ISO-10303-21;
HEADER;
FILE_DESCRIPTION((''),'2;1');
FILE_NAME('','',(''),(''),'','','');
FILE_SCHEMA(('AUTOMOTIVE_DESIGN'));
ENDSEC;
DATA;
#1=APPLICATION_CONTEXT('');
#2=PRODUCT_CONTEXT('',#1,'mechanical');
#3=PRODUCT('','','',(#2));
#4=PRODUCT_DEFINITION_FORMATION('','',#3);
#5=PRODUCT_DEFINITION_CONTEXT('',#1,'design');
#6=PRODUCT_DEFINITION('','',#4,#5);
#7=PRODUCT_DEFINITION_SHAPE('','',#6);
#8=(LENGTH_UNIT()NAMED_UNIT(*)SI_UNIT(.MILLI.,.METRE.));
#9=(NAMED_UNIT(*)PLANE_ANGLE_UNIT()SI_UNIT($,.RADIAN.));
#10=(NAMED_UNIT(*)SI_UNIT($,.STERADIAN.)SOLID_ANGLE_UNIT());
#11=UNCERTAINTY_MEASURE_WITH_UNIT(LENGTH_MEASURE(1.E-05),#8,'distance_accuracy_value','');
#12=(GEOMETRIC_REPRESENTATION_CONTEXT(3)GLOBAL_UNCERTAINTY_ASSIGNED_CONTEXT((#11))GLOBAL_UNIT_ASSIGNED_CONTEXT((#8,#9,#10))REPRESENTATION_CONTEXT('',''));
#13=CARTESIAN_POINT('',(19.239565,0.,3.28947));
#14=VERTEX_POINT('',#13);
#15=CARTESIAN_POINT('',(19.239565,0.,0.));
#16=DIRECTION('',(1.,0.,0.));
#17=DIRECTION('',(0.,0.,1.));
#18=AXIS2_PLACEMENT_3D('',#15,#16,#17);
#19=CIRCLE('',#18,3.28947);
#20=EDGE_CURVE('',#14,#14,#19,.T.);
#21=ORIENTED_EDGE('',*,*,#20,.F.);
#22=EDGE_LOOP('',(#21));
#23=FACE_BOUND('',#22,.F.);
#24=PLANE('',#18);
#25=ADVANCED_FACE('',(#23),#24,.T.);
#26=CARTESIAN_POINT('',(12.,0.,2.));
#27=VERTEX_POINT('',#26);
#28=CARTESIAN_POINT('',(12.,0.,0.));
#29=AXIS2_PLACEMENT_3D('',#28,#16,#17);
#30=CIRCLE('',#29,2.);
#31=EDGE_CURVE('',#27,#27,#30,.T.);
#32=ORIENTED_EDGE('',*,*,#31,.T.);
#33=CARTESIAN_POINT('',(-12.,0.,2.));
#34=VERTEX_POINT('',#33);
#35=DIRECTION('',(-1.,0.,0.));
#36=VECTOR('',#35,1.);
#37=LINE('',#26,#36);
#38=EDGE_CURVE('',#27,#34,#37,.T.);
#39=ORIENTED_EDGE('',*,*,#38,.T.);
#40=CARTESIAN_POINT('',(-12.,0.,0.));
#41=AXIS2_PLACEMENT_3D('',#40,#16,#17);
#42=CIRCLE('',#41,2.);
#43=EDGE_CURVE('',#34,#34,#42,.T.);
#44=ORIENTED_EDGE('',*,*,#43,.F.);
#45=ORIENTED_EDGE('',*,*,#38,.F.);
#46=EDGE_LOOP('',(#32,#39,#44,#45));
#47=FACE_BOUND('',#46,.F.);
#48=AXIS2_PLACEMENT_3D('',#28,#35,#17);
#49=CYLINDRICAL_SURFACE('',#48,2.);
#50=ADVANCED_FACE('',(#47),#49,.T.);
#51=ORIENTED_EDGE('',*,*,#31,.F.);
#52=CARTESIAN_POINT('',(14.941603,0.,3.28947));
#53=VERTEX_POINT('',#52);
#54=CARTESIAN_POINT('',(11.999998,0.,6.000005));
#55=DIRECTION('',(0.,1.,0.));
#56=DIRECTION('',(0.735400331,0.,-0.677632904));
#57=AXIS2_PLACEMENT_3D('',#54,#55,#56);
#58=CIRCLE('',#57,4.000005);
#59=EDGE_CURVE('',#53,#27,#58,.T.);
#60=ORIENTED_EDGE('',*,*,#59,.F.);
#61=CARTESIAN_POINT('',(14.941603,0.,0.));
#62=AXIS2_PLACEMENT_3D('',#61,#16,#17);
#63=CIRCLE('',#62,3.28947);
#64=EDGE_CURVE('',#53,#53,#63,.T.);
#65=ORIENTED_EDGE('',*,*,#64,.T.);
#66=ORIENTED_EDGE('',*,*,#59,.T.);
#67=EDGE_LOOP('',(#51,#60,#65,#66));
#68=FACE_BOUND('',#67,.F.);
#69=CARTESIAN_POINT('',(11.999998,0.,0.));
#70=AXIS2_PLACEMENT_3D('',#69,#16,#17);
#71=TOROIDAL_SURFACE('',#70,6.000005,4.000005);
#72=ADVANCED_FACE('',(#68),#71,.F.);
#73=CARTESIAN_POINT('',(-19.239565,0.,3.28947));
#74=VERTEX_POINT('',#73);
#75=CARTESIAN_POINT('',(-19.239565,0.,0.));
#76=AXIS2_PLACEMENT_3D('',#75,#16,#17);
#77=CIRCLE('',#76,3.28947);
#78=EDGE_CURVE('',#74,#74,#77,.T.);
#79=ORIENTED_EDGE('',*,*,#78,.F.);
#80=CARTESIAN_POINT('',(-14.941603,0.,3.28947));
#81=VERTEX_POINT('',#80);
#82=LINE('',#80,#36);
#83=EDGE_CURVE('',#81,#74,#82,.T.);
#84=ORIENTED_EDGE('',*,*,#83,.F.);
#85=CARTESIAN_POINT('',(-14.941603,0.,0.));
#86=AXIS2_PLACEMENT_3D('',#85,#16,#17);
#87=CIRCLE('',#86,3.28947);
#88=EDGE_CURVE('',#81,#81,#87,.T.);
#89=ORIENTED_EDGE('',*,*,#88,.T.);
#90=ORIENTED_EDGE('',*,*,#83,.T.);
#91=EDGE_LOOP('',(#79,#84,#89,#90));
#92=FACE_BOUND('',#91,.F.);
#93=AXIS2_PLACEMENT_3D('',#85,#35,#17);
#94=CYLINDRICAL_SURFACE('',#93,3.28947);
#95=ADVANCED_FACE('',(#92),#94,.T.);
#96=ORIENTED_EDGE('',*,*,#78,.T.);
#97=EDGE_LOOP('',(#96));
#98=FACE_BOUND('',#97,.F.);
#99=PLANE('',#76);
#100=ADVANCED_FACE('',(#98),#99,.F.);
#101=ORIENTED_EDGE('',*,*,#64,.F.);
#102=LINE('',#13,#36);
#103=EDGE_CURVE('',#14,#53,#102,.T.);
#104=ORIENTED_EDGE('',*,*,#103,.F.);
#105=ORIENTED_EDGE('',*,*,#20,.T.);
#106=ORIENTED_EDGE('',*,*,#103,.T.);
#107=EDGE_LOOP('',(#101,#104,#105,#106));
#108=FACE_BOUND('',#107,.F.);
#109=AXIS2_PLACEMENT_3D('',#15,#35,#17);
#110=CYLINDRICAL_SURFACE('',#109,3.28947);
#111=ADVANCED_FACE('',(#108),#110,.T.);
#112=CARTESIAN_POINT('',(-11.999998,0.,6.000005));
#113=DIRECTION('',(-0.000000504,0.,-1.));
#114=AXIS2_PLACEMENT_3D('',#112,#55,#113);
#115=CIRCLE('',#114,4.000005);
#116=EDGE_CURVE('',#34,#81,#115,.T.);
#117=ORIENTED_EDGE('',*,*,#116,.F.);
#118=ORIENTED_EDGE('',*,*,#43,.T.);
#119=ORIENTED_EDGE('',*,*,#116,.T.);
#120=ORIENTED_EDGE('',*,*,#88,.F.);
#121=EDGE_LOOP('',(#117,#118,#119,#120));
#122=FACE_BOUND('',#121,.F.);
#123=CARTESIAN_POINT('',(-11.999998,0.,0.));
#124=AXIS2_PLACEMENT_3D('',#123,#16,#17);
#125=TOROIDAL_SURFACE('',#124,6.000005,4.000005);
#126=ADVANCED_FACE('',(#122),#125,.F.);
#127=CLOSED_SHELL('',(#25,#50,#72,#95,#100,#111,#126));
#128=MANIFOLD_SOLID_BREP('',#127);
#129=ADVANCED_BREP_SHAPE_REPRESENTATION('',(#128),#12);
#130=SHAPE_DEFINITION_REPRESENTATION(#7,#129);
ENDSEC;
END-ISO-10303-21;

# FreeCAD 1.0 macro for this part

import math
import FreeCAD as App
import Part
import Sketcher
from FreeCAD import Vector

doc = App.newDocument("Part")
body = doc.addObject("PartDesign::Body", "Body")

# Sketch on XZ plane
sketch1 = body.newObject("Sketcher::SketchObject", "Sketch")
sketch1.AttachmentSupport = (doc.getObject("XZ_Plane"), [""])
sketch1.MapMode = "FlatFace"
sketch1.addGeometry(Part.LineSegment(Vector(12, 2, 0), Vector(-12, 2, 0)), False)
sketch1.addGeometry(Part.ArcOfCircle(Part.Circle(Vector(-11.999998, 6.000005, 0), Vector(0, 0, 1), 4.000005), math.radians(-137.341054), math.radians(-90.000029)), False)
sketch1.addGeometry(Part.LineSegment(Vector(-14.941603, 3.28947, 0), Vector(-19.239565, 3.28947, 0)), False)
sketch1.addGeometry(Part.LineSegment(Vector(-19.239565, 3.28947, 0), Vector(-19.239565, 0, 0)), False)
sketch1.addGeometry(Part.LineSegment(Vector(-19.239565, 0, 0), Vector(19.239565, 0, 0)), False)
sketch1.addGeometry(Part.LineSegment(Vector(19.239565, 0, 0), Vector(19.239565, 3.28947, 0)), False)
sketch1.addGeometry(Part.LineSegment(Vector(19.239565, 3.28947, 0), Vector(14.941603, 3.28947, 0)), False)
sketch1.addGeometry(Part.ArcOfCircle(Part.Circle(Vector(11.999998, 6.000005, 0), Vector(0, 0, 1), 4.000005), math.radians(-89.999971), math.radians(-42.658946)), False)
sketch1.addConstraint(Sketcher.Constraint("Tangent", 0, 2, 1, 2))
sketch1.addConstraint(Sketcher.Constraint("Coincident", 1, 1, 2, 1))
sketch1.addConstraint(Sketcher.Constraint("Coincident", 2, 2, 3, 1))
sketch1.addConstraint(Sketcher.Constraint("Coincident", 3, 2, 4, 1))
sketch1.addConstraint(Sketcher.Constraint("Coincident", 4, 2, 5, 1))
sketch1.addConstraint(Sketcher.Constraint("Coincident", 5, 2, 6, 1))
sketch1.addConstraint(Sketcher.Constraint("Coincident", 6, 2, 7, 2))
sketch1.addConstraint(Sketcher.Constraint("Tangent", 7, 1, 0, 1))
sketch1.addConstraint(Sketcher.Constraint("Horizontal", 0))
sketch1.addConstraint(Sketcher.Constraint("Horizontal", 2))
sketch1.addConstraint(Sketcher.Constraint("Vertical", 3))
sketch1.addConstraint(Sketcher.Constraint("Horizontal", 4))
sketch1.addConstraint(Sketcher.Constraint("Vertical", 5))
sketch1.addConstraint(Sketcher.Constraint("Horizontal", 6))
sketch1.addConstraint(Sketcher.Constraint("Equal", 1, 7))
sketch1.addConstraint(Sketcher.Constraint("Symmetric", 3, 2, 4, 2, -1, 1))
sketch1.addConstraint(Sketcher.Constraint("Symmetric", 1, 1, 6, 2, -2))
sketch1.addConstraint(Sketcher.Constraint("DistanceX", 0, 2, 0, 1, 24.0))
sketch1.addConstraint(Sketcher.Constraint("DistanceY", -1, 1, 0, 2, 2.0))
sketch1.addConstraint(Sketcher.Constraint("Radius", 1, 4.000005))
sketch1.addConstraint(Sketcher.Constraint("DistanceX", 2, 2, 2, 1, 4.297962))
sketch1.addConstraint(Sketcher.Constraint("DistanceX", 4, 1, 4, 2, 38.47913))
revolution = body.newObject("PartDesign::Revolution", "Revolution")
revolution.Profile = sketch1
revolution.ReferenceAxis = (sketch1, ["H_Axis"])
revolution.Angle = 360

doc.recompute()
